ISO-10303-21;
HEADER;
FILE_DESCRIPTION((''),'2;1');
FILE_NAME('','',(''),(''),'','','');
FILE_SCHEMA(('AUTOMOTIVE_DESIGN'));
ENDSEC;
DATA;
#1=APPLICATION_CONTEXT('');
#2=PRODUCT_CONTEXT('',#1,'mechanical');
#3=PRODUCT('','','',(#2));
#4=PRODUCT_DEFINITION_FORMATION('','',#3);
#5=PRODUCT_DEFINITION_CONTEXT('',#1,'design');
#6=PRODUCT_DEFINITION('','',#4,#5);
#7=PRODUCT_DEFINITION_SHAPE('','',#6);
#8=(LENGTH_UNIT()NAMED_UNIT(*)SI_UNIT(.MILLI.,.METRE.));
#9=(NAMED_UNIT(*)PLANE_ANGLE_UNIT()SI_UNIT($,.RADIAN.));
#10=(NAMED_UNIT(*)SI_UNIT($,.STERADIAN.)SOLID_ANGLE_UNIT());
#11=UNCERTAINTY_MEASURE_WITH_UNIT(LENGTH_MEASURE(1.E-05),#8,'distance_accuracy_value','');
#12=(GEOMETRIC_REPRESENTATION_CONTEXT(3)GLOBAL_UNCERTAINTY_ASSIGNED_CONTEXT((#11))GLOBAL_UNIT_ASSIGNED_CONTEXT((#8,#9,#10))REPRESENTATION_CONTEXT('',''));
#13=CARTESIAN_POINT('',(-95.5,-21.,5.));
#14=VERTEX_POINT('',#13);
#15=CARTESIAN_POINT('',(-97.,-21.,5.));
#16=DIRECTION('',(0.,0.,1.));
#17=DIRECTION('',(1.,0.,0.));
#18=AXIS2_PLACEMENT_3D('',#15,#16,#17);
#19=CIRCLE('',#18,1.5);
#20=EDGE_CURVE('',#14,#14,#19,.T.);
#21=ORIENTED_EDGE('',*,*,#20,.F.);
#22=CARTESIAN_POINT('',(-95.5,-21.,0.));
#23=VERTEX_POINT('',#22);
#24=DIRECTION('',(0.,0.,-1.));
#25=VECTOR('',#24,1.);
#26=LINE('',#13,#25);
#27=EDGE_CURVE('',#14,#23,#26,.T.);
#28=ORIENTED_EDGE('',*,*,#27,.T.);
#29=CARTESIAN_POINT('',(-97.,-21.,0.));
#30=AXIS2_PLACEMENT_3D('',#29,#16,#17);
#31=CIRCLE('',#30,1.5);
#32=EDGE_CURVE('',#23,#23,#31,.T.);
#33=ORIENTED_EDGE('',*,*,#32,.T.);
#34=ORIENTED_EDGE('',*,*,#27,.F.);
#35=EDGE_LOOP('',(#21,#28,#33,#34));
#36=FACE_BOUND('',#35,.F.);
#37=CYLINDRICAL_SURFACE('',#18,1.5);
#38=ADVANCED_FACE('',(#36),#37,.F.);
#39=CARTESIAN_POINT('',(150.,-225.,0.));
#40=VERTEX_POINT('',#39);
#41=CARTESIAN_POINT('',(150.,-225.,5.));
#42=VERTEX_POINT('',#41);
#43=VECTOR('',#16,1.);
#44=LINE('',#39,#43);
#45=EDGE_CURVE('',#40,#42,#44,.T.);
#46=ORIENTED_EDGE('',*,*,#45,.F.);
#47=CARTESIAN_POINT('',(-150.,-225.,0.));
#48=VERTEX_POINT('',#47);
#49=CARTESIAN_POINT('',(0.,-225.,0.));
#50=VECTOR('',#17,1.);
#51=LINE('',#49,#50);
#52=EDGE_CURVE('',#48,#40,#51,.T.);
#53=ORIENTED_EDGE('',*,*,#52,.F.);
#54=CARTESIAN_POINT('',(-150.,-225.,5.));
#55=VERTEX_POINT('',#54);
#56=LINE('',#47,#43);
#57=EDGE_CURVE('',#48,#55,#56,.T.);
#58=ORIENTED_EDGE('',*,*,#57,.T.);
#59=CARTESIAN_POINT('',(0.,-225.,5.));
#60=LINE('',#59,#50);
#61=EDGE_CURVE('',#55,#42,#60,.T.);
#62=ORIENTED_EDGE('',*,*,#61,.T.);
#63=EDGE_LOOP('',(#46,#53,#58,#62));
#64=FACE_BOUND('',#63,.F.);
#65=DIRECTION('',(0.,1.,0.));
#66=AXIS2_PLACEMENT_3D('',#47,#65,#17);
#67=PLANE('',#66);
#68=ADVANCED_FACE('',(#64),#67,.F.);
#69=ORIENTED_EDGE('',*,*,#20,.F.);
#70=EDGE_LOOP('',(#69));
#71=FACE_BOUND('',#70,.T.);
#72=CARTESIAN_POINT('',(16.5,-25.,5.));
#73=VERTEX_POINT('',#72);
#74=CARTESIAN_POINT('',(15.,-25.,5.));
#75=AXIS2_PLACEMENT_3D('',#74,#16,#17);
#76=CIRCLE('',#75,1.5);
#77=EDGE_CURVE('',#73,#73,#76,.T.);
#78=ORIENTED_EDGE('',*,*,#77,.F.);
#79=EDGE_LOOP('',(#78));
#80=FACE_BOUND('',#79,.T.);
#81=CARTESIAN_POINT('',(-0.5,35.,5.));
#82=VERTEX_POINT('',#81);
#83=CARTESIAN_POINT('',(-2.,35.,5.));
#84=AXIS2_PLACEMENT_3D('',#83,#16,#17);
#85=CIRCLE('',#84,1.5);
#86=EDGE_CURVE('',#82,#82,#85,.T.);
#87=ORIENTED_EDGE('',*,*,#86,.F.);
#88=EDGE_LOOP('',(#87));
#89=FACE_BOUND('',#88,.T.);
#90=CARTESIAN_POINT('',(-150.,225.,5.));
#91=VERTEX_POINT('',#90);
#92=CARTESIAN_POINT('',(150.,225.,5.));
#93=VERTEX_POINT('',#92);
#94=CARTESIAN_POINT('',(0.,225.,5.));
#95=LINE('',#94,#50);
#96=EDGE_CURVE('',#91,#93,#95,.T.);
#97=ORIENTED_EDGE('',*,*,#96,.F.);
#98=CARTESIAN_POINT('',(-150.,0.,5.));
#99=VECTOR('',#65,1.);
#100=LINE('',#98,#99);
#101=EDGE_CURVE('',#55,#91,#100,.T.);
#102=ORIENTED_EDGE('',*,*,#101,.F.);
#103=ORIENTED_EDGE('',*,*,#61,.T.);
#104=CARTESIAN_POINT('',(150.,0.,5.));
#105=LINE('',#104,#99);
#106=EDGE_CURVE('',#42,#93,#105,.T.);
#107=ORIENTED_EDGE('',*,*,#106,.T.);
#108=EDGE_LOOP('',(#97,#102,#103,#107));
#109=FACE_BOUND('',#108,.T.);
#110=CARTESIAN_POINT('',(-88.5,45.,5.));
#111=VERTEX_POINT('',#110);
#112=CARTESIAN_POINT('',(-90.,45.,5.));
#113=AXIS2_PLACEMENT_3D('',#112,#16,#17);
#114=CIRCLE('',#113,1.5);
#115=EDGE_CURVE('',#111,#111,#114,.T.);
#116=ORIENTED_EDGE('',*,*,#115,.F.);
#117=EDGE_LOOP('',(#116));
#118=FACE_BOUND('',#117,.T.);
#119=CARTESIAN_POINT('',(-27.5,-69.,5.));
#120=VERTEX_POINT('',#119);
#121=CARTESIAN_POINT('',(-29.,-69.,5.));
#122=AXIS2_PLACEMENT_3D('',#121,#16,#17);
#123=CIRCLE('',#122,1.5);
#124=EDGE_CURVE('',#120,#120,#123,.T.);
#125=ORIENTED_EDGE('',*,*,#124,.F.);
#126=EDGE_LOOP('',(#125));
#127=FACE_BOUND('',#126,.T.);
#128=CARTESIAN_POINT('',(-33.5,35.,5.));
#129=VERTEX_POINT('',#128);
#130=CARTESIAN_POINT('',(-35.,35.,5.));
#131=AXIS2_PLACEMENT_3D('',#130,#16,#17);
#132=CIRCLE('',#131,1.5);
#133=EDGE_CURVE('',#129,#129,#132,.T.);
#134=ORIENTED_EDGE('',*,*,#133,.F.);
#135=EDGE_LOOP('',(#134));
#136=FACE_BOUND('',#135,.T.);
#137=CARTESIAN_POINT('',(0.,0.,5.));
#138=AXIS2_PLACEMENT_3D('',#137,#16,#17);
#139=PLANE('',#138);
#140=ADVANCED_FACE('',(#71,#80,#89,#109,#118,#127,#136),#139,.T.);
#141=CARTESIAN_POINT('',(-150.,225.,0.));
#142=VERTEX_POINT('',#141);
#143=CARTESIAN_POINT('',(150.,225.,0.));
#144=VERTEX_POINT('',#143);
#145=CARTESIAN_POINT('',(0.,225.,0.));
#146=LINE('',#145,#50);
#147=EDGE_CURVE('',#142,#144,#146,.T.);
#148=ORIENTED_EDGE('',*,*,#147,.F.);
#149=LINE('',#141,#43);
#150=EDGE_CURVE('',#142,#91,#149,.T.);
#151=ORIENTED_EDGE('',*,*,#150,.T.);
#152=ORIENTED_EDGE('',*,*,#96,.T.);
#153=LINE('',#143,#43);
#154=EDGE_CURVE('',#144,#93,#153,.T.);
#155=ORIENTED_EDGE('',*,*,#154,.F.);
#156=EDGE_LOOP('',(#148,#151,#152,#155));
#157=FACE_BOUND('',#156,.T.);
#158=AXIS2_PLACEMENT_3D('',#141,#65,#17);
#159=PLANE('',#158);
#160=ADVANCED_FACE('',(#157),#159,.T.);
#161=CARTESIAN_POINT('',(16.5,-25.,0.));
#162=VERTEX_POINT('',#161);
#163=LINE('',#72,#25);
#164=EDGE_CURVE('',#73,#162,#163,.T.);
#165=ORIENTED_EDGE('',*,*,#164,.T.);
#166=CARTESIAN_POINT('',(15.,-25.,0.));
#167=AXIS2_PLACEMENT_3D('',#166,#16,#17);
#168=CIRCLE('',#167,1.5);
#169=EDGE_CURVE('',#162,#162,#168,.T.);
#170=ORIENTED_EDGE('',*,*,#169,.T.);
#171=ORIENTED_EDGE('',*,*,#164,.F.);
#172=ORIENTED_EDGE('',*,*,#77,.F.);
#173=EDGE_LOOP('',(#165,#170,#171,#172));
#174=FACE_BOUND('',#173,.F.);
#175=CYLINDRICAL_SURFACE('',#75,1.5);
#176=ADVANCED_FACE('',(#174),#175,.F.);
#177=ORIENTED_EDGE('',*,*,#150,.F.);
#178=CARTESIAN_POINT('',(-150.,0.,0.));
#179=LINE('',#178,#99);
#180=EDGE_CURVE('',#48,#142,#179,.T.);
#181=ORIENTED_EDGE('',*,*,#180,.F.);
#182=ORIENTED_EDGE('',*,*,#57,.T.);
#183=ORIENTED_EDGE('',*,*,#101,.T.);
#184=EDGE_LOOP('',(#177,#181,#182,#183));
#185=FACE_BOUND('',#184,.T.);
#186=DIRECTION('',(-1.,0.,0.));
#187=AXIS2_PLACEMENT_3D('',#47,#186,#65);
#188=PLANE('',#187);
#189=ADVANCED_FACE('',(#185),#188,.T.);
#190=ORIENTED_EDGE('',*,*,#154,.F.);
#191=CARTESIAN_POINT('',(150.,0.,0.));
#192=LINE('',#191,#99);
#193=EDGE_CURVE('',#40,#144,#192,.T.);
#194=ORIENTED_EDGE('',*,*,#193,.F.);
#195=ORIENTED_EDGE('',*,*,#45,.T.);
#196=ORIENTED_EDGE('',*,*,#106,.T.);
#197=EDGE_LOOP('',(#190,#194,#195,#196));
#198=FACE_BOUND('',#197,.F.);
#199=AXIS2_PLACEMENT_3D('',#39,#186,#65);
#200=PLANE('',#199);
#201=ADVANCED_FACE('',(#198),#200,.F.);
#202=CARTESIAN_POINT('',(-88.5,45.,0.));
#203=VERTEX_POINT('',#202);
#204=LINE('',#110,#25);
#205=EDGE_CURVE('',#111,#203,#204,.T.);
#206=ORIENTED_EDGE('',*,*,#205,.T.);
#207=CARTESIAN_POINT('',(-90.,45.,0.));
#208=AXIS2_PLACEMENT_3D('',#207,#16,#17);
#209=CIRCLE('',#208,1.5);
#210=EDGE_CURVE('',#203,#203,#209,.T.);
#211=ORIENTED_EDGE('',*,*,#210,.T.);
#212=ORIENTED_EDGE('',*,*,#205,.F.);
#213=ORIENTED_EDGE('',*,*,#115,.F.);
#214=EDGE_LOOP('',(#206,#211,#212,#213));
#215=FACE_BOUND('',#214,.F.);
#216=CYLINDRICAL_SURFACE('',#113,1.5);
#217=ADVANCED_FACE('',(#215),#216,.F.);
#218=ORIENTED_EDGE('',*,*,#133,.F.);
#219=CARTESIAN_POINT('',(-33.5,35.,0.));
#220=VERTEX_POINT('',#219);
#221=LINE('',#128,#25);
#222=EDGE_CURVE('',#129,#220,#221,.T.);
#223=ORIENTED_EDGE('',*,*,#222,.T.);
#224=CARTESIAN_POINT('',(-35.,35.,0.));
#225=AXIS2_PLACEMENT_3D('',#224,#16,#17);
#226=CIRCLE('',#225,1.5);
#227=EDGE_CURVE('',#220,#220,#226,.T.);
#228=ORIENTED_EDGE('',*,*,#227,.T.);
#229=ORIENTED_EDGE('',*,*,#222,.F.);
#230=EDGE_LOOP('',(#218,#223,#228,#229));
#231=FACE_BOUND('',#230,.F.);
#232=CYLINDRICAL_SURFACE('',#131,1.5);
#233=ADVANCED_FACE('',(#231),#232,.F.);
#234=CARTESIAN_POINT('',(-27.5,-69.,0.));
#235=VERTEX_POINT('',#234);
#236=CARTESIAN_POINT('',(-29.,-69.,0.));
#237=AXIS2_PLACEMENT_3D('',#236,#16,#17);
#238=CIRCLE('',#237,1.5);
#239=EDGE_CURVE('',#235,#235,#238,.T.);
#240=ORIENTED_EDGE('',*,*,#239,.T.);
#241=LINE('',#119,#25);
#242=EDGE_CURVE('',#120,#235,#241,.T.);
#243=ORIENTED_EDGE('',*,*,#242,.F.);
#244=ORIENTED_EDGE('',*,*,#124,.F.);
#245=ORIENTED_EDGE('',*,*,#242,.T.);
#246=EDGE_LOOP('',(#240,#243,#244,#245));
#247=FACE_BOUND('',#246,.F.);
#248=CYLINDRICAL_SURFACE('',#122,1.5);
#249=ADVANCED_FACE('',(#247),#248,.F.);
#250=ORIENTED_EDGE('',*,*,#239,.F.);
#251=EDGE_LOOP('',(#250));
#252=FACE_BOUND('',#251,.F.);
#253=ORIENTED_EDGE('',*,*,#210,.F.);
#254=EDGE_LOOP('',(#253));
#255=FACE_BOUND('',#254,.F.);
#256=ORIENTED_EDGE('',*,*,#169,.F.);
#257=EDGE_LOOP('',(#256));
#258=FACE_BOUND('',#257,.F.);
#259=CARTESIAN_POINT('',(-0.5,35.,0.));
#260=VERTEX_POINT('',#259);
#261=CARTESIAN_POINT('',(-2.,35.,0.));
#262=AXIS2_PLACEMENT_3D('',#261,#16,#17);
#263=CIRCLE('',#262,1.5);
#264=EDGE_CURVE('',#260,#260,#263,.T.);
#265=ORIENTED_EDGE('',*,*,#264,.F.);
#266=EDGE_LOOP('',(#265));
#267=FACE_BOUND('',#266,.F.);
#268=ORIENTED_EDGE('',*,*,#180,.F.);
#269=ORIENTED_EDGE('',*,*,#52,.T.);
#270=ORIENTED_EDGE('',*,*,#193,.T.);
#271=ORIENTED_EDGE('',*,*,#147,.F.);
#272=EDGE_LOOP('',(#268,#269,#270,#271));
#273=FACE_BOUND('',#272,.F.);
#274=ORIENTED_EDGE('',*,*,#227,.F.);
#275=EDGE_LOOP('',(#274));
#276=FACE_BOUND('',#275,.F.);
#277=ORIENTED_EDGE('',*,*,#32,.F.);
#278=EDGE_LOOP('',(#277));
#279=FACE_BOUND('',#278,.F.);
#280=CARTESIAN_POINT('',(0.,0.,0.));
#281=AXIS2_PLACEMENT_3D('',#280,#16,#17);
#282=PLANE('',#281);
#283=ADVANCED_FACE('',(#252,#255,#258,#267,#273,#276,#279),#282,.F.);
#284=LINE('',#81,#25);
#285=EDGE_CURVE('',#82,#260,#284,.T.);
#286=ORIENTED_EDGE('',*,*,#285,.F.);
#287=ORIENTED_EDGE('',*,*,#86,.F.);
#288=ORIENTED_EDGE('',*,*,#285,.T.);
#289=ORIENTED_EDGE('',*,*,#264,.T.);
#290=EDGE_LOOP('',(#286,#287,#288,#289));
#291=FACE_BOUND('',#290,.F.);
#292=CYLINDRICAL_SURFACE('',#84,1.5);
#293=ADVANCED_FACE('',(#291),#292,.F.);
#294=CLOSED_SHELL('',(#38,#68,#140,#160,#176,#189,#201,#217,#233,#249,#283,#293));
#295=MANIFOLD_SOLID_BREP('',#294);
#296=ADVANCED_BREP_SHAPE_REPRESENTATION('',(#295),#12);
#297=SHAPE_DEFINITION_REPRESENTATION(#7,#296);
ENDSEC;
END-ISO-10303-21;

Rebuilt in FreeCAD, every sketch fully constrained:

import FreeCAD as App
import Part
import Sketcher

V = App.Vector
Q = App.Units.Quantity


def add_polygon(sketch, points):
    """Adds a closed chain of lines whose ends are joined by coincident constraints."""
    first, n = sketch.GeometryCount, len(points)
    for a, b in zip(points, points[1:] + points[:1]):
        sketch.addGeometry(Part.LineSegment(App.Vector(*a, 0), App.Vector(*b, 0)), False)
    for i in range(n):
        sketch.addConstraint(Sketcher.Constraint("Coincident", first + i, 2, first + (i + 1) % n, 1))

doc = App.newDocument("Part")
body = doc.addObject("PartDesign::Body", "Body")

# Sketch on XY plane
sketch1 = body.newObject("Sketcher::SketchObject", "Sketch")
sketch1.AttachmentSupport = (doc.getObject("XY_Plane"), [""])
sketch1.MapMode = "FlatFace"
add_polygon(sketch1, [(-150, 225), (-150, -225), (150, -225), (150, 225)])  # lines 0-3
sketch1.addConstraint(Sketcher.Constraint("Vertical", 0))
sketch1.addConstraint(Sketcher.Constraint("Horizontal", 1))
sketch1.addConstraint(Sketcher.Constraint("Vertical", 2))
sketch1.addConstraint(Sketcher.Constraint("Horizontal", 3))
sketch1.addConstraint(Sketcher.Constraint("Symmetric", 0, 2, 2, 2, -1, 1))
sketch1.addConstraint(Sketcher.Constraint("DistanceX", 1, 1, 1, 2, Q("300 mm")))
sketch1.addConstraint(Sketcher.Constraint("DistanceY", 0, 2, 0, 1, Q("450 mm")))
pad1 = body.newObject("PartDesign::Pad", "Pad")
pad1.Profile = sketch1
pad1.Length = 5

# Sketch on XY plane
sketch2 = body.newObject("Sketcher::SketchObject", "Sketch001")
sketch2.AttachmentSupport = (doc.getObject("XY_Plane"), [""])
sketch2.MapMode = "FlatFace"
sketch2.AttachmentOffset = App.Placement(V(0, 0, 5), App.Rotation())
sketch2.addGeometry(Part.Circle(V(-90, 45, 0), V(0, 0, 1), 1.5), False)
sketch2.addGeometry(Part.Circle(V(-97, -21, 0), V(0, 0, 1), 1.5), False)
sketch2.addGeometry(Part.Circle(V(-35, 35, 0), V(0, 0, 1), 1.5), False)
sketch2.addGeometry(Part.Circle(V(-2, 35, 0), V(0, 0, 1), 1.5), False)
sketch2.addGeometry(Part.Circle(V(-29, -69, 0), V(0, 0, 1), 1.5), False)
sketch2.addGeometry(Part.Circle(V(15, -25, 0), V(0, 0, 1), 1.5), False)
sketch2.addConstraint(Sketcher.Constraint("Equal", 0, 1))
sketch2.addConstraint(Sketcher.Constraint("Equal", 1, 2))
sketch2.addConstraint(Sketcher.Constraint("Equal", 2, 3))
sketch2.addConstraint(Sketcher.Constraint("Equal", 3, 4))
sketch2.addConstraint(Sketcher.Constraint("Equal", 4, 5))
sketch2.addConstraint(Sketcher.Constraint("Horizontal", 2, 3, 3, 3))
sketch2.addConstraint(Sketcher.Constraint("Diameter", 0, Q("3 mm")))
sketch2.addConstraint(Sketcher.Constraint("DistanceX", 0, 3, -1, 1, Q("90 mm")))
sketch2.addConstraint(Sketcher.Constraint("DistanceY", -1, 1, 0, 3, Q("45 mm")))
sketch2.addConstraint(Sketcher.Constraint("DistanceX", 1, 3, -1, 1, Q("97 mm")))
sketch2.addConstraint(Sketcher.Constraint("DistanceY", 1, 3, -1, 1, Q("21 mm")))
sketch2.addConstraint(Sketcher.Constraint("DistanceX", 2, 3, -1, 1, Q("35 mm")))
sketch2.addConstraint(Sketcher.Constraint("DistanceY", -1, 1, 2, 3, Q("35 mm")))
sketch2.addConstraint(Sketcher.Constraint("DistanceX", 3, 3, -1, 1, Q("2 mm")))
sketch2.addConstraint(Sketcher.Constraint("DistanceX", 4, 3, -1, 1, Q("29 mm")))
sketch2.addConstraint(Sketcher.Constraint("DistanceY", 4, 3, -1, 1, Q("69 mm")))
sketch2.addConstraint(Sketcher.Constraint("DistanceX", -1, 1, 5, 3, Q("15 mm")))
sketch2.addConstraint(Sketcher.Constraint("DistanceY", 5, 3, -1, 1, Q("25 mm")))
pocket1 = body.newObject("PartDesign::Pocket", "Pocket")
pocket1.Profile = sketch2
pocket1.Length = 25

doc.recompute()
